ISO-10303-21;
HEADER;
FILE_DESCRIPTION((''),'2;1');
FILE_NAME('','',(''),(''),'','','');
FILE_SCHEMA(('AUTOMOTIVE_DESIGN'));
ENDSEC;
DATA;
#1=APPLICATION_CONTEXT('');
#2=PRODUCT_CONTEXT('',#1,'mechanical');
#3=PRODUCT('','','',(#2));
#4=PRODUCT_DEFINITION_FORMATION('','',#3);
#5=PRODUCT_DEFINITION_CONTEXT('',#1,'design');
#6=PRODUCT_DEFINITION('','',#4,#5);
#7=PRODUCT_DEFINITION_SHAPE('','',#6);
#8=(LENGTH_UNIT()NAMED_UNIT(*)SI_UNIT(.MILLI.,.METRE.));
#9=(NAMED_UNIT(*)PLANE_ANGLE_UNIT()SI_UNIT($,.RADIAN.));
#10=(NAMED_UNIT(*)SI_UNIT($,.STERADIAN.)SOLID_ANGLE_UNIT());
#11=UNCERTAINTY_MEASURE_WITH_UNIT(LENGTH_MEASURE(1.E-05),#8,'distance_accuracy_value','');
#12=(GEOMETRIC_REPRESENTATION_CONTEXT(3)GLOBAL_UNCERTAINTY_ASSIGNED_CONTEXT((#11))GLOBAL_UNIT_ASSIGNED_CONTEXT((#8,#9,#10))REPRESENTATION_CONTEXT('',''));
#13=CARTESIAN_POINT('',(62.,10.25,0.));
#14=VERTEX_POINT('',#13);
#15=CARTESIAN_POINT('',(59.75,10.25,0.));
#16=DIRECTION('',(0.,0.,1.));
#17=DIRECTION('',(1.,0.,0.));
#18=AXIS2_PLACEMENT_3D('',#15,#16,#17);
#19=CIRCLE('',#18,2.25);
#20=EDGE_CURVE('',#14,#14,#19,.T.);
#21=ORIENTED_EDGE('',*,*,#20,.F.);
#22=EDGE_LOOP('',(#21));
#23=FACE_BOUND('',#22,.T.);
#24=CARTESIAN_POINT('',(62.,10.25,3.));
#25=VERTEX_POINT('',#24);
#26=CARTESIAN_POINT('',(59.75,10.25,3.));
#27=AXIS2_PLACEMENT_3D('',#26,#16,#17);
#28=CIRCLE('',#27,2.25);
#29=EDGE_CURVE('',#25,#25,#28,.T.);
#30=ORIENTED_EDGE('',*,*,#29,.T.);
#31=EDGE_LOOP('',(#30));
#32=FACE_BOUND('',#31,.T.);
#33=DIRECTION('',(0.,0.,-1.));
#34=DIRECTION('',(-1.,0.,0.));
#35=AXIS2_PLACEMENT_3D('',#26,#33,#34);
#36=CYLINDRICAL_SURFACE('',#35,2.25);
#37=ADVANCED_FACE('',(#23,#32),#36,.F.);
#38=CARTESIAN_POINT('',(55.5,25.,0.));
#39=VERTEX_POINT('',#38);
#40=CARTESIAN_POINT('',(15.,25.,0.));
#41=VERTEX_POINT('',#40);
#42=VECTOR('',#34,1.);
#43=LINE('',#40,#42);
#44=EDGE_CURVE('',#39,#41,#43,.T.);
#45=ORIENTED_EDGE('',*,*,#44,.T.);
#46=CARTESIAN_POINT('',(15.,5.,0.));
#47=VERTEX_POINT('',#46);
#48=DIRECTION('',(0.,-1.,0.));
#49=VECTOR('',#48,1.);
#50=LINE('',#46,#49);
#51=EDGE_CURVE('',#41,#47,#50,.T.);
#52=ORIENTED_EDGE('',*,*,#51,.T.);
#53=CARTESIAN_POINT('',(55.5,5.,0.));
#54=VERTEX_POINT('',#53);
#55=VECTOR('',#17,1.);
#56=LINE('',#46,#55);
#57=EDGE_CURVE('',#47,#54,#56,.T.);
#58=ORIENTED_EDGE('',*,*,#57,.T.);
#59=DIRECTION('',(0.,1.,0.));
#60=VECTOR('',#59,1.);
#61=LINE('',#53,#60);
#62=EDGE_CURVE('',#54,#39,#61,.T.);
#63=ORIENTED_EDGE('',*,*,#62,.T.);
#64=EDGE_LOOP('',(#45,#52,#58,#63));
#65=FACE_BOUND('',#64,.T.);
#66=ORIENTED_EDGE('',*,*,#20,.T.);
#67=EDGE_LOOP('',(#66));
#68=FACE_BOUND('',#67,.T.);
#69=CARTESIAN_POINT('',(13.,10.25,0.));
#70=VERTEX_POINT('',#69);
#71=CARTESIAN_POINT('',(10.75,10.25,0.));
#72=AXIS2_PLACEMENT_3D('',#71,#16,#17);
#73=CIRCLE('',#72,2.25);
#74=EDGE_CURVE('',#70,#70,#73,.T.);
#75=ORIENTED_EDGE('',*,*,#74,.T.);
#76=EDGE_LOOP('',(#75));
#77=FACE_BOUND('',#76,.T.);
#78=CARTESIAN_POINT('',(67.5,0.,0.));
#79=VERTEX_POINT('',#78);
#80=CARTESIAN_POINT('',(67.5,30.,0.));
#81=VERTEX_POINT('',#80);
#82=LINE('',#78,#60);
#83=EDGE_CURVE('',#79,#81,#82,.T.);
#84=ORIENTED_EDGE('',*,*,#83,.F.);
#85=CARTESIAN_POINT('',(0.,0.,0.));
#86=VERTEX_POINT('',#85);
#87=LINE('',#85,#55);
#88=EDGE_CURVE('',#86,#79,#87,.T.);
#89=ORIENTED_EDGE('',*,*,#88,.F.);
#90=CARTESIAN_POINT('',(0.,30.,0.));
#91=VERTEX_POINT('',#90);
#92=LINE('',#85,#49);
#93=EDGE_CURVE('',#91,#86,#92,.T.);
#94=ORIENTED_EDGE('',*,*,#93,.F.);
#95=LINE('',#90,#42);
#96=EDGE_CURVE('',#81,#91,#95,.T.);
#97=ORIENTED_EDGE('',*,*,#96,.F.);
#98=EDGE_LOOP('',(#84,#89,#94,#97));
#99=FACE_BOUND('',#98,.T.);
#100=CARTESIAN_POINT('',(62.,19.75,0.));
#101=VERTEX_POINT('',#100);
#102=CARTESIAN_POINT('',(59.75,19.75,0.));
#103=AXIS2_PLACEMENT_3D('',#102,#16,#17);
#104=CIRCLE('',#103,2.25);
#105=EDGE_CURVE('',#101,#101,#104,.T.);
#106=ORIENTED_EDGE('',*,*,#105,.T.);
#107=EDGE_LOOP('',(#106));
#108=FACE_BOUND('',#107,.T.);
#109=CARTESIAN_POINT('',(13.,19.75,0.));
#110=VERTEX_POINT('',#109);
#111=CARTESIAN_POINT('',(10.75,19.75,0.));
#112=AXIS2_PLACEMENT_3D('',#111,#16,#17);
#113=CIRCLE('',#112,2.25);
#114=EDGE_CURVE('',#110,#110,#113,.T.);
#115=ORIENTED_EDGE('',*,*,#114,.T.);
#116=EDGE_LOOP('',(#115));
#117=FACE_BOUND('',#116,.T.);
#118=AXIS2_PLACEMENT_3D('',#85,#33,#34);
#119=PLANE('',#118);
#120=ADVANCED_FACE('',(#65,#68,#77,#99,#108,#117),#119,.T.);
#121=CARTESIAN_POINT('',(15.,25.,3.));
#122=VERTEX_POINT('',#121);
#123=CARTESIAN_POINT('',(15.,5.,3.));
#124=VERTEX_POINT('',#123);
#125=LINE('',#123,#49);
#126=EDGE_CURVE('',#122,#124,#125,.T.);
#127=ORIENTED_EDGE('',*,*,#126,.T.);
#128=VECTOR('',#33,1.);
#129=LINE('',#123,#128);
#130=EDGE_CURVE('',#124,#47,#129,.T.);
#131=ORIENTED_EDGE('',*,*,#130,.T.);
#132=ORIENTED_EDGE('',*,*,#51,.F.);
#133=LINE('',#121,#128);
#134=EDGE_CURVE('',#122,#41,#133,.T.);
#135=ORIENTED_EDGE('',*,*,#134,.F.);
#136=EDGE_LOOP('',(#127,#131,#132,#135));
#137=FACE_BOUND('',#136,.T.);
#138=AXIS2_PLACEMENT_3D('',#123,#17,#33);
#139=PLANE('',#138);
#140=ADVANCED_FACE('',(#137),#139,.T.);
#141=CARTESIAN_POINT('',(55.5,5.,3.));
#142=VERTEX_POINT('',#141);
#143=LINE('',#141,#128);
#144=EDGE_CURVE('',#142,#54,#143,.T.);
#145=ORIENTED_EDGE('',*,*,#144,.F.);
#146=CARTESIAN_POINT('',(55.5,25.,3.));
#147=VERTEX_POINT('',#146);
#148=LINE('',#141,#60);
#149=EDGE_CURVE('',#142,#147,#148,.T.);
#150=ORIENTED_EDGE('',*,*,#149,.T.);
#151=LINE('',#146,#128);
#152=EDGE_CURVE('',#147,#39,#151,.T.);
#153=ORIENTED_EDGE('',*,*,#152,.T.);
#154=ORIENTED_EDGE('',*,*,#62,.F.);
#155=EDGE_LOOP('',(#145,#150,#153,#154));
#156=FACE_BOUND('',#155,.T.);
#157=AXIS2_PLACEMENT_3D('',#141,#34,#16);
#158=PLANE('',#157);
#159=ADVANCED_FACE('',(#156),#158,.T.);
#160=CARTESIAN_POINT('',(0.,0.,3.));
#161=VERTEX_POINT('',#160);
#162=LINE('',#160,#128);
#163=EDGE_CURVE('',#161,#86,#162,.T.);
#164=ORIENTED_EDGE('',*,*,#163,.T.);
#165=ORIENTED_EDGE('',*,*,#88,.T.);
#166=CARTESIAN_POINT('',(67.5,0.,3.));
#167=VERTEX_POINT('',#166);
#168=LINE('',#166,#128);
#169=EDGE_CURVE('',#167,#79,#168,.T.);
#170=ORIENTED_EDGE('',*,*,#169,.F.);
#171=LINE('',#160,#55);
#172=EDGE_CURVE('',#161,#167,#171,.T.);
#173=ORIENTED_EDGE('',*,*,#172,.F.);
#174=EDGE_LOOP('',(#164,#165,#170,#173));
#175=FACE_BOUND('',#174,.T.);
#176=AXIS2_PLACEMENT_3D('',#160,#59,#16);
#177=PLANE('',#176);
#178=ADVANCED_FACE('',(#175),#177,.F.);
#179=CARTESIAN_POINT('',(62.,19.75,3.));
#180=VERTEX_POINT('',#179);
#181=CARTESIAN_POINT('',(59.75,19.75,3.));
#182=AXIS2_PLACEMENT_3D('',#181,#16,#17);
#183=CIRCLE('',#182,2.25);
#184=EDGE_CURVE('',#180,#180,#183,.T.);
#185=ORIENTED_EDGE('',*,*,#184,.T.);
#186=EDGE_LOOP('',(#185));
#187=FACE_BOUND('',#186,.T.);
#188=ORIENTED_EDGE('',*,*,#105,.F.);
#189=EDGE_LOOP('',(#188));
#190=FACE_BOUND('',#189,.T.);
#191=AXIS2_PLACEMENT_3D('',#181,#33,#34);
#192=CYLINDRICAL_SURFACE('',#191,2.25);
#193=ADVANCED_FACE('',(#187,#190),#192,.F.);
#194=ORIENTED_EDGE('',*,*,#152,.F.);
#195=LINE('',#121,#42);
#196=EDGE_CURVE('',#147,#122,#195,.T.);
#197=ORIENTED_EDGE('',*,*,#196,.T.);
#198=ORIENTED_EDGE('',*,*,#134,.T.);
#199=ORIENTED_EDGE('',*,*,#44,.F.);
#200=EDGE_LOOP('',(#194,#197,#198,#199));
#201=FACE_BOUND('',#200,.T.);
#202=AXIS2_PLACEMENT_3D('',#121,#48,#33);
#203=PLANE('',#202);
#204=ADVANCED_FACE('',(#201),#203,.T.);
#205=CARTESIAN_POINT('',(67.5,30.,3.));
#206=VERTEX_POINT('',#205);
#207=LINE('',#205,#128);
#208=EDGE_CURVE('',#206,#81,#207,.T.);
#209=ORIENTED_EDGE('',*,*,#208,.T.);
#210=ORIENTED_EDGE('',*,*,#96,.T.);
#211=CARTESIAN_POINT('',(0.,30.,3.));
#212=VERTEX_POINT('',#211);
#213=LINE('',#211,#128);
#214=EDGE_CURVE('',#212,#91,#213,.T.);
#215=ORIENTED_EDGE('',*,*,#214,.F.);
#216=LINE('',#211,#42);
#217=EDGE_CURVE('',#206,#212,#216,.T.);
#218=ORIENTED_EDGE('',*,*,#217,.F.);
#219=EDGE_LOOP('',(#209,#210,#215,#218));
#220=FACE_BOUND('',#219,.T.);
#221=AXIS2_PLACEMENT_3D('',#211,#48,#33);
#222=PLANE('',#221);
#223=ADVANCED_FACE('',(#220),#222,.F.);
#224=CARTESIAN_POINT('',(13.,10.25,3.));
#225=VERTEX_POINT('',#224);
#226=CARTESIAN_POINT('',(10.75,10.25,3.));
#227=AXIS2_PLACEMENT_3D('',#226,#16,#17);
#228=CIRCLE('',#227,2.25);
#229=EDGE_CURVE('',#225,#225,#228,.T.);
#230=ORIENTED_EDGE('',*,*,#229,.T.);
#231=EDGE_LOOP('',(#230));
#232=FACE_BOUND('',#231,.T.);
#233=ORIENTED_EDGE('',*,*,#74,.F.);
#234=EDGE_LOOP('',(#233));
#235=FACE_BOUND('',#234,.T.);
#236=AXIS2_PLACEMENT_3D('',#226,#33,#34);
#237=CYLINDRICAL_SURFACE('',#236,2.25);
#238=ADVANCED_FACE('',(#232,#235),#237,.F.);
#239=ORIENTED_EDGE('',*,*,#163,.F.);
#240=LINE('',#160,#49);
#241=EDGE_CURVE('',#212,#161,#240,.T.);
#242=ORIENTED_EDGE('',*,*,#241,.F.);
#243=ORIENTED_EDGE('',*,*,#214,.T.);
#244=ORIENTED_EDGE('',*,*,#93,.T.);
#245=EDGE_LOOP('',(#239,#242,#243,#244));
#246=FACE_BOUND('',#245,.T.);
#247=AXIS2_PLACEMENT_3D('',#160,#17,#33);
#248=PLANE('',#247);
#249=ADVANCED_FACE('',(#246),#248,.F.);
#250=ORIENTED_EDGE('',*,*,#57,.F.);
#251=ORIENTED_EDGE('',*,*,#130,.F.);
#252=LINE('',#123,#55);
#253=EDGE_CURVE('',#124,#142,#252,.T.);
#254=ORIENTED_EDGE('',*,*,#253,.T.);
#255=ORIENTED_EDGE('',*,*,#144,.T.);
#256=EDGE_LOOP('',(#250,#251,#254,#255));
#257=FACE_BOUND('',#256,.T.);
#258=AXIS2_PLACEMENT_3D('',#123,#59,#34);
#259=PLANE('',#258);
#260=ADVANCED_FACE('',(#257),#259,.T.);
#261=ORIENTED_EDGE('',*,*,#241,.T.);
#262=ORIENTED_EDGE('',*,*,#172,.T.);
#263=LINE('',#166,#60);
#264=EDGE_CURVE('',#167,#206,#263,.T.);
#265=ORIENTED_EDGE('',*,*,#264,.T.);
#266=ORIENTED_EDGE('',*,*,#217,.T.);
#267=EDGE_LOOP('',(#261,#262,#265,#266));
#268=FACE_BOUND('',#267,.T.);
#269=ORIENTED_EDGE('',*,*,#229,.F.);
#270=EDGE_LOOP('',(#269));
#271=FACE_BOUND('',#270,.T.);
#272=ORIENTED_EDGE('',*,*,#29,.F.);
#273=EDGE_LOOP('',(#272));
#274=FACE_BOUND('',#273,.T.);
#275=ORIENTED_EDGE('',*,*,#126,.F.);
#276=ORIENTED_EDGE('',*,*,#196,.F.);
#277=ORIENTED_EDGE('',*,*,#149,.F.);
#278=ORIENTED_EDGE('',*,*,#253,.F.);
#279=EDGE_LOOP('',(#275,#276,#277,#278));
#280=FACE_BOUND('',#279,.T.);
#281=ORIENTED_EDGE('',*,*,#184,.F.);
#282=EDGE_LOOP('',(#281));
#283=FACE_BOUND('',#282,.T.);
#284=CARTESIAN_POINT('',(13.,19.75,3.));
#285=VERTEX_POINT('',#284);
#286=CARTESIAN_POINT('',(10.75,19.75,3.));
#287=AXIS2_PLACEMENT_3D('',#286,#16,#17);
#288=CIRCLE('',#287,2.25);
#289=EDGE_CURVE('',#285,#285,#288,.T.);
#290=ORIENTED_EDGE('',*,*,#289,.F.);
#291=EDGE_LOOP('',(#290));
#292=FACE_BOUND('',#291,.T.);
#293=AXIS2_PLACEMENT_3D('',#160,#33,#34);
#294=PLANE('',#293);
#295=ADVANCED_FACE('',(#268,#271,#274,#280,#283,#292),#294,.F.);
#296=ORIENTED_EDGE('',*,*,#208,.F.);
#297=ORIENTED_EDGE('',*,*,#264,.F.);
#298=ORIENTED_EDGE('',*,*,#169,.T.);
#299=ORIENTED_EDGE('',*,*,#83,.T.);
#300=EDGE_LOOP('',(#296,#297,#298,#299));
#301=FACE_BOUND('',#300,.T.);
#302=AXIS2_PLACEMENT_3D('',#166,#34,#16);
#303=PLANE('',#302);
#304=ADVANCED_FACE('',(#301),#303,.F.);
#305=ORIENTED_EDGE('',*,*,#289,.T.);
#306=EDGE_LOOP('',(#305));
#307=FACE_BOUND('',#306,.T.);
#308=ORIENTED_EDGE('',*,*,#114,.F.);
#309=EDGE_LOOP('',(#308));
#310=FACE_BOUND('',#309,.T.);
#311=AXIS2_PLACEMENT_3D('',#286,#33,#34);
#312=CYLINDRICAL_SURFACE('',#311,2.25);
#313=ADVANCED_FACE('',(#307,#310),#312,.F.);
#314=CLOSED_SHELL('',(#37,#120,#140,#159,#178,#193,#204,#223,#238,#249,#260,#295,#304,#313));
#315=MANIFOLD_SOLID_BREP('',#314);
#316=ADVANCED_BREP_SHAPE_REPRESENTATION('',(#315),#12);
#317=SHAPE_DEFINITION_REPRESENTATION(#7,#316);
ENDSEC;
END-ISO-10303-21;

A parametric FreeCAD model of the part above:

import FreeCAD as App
import Part
import Sketcher
from FreeCAD import Vector
Q = App.Units.Quantity

doc = App.newDocument("Part")
body = doc.addObject("PartDesign::Body", "Body")

# Sketch on XY plane
sketch1 = body.newObject("Sketcher::SketchObject", "Sketch")
sketch1.AttachmentSupport = (doc.getObject("XY_Plane"), [""])
sketch1.MapMode = "FlatFace"
sketch1.addGeometry([
    Part.LineSegment(Vector(0, 30, 0), Vector(0, 0, 0)),  # 0
    Part.LineSegment(Vector(0, 0, 0), Vector(67.5, 0, 0)),  # 1
    Part.LineSegment(Vector(67.5, 0, 0), Vector(67.5, 30, 0)),  # 2
    Part.LineSegment(Vector(67.5, 30, 0), Vector(0, 30, 0)),  # 3
    Part.Circle(Vector(10.75, 10.25, 0), Vector(0, 0, 1), 2.25),  # 4
    Part.Circle(Vector(59.75, 10.25, 0), Vector(0, 0, 1), 2.25),  # 5
    Part.Circle(Vector(10.75, 19.75, 0), Vector(0, 0, 1), 2.25),  # 6
    Part.LineSegment(Vector(55.5, 5, 0), Vector(15, 5, 0)),  # 7
    Part.LineSegment(Vector(15, 5, 0), Vector(15, 25, 0)),  # 8
    Part.LineSegment(Vector(15, 25, 0), Vector(55.5, 25, 0)),  # 9
    Part.LineSegment(Vector(55.5, 25, 0), Vector(55.5, 5, 0)),  # 10
    Part.Circle(Vector(59.75, 19.75, 0), Vector(0, 0, 1), 2.25),  # 11
], False)
sketch1.addConstraint([
    Sketcher.Constraint("Coincident", 0, 2, 1, 1),
    Sketcher.Constraint("Coincident", 1, 2, 2, 1),
    Sketcher.Constraint("Coincident", 2, 2, 3, 1),
    Sketcher.Constraint("Coincident", 3, 2, 0, 1),
    Sketcher.Constraint("Coincident", 7, 2, 8, 1),
    Sketcher.Constraint("Coincident", 8, 2, 9, 1),
    Sketcher.Constraint("Coincident", 9, 2, 10, 1),
    Sketcher.Constraint("Coincident", 10, 2, 7, 1),
    Sketcher.Constraint("Vertical", 0),
    Sketcher.Constraint("Horizontal", 1),
    Sketcher.Constraint("Vertical", 2),
    Sketcher.Constraint("Horizontal", 3),
    Sketcher.Constraint("Horizontal", 7),
    Sketcher.Constraint("Vertical", 8),
    Sketcher.Constraint("Horizontal", 9),
    Sketcher.Constraint("Vertical", 10),
    Sketcher.Constraint("Coincident", 0, 2, -1, 1),
    Sketcher.Constraint("Equal", 4, 5),
    Sketcher.Constraint("Equal", 5, 6),
    Sketcher.Constraint("Equal", 6, 11),
    Sketcher.Constraint("Horizontal", 4, 3, 5, 3),
    Sketcher.Constraint("Horizontal", 6, 3, 11, 3),
    Sketcher.Constraint("Vertical", 4, 3, 6, 3),
    Sketcher.Constraint("Vertical", 5, 3, 11, 3),
    Sketcher.Constraint("Diameter", 4, Q("4.5 mm")),
    Sketcher.Constraint("DistanceY", 0, 2, 0, 1, Q("30 mm")),
    Sketcher.Constraint("DistanceY", 8, 1, 8, 2, Q("20 mm")),
    Sketcher.Constraint("DistanceX", 1, 1, 1, 2, Q("67.5 mm")),
    Sketcher.Constraint("DistanceX", 7, 2, 7, 1, Q("40.5 mm")),
    Sketcher.Constraint("DistanceX", -1, 1, 7, 2, Q("15 mm")),
    Sketcher.Constraint("DistanceY", -1, 1, 7, 2, Q("5 mm")),
    Sketcher.Constraint("DistanceX", 4, 3, 5, 3, Q("49 mm")),
    Sketcher.Constraint("DistanceY", 4, 3, 6, 3, Q("9.5 mm")),
    Sketcher.Constraint("DistanceX", -1, 1, 4, 3, Q("10.75 mm")),
    Sketcher.Constraint("DistanceY", -1, 1, 4, 3, Q("10.25 mm")),
])
pad1 = body.newObject("PartDesign::Pad", "Pad")
pad1.Profile = sketch1
pad1.Length = 3

doc.recompute()
